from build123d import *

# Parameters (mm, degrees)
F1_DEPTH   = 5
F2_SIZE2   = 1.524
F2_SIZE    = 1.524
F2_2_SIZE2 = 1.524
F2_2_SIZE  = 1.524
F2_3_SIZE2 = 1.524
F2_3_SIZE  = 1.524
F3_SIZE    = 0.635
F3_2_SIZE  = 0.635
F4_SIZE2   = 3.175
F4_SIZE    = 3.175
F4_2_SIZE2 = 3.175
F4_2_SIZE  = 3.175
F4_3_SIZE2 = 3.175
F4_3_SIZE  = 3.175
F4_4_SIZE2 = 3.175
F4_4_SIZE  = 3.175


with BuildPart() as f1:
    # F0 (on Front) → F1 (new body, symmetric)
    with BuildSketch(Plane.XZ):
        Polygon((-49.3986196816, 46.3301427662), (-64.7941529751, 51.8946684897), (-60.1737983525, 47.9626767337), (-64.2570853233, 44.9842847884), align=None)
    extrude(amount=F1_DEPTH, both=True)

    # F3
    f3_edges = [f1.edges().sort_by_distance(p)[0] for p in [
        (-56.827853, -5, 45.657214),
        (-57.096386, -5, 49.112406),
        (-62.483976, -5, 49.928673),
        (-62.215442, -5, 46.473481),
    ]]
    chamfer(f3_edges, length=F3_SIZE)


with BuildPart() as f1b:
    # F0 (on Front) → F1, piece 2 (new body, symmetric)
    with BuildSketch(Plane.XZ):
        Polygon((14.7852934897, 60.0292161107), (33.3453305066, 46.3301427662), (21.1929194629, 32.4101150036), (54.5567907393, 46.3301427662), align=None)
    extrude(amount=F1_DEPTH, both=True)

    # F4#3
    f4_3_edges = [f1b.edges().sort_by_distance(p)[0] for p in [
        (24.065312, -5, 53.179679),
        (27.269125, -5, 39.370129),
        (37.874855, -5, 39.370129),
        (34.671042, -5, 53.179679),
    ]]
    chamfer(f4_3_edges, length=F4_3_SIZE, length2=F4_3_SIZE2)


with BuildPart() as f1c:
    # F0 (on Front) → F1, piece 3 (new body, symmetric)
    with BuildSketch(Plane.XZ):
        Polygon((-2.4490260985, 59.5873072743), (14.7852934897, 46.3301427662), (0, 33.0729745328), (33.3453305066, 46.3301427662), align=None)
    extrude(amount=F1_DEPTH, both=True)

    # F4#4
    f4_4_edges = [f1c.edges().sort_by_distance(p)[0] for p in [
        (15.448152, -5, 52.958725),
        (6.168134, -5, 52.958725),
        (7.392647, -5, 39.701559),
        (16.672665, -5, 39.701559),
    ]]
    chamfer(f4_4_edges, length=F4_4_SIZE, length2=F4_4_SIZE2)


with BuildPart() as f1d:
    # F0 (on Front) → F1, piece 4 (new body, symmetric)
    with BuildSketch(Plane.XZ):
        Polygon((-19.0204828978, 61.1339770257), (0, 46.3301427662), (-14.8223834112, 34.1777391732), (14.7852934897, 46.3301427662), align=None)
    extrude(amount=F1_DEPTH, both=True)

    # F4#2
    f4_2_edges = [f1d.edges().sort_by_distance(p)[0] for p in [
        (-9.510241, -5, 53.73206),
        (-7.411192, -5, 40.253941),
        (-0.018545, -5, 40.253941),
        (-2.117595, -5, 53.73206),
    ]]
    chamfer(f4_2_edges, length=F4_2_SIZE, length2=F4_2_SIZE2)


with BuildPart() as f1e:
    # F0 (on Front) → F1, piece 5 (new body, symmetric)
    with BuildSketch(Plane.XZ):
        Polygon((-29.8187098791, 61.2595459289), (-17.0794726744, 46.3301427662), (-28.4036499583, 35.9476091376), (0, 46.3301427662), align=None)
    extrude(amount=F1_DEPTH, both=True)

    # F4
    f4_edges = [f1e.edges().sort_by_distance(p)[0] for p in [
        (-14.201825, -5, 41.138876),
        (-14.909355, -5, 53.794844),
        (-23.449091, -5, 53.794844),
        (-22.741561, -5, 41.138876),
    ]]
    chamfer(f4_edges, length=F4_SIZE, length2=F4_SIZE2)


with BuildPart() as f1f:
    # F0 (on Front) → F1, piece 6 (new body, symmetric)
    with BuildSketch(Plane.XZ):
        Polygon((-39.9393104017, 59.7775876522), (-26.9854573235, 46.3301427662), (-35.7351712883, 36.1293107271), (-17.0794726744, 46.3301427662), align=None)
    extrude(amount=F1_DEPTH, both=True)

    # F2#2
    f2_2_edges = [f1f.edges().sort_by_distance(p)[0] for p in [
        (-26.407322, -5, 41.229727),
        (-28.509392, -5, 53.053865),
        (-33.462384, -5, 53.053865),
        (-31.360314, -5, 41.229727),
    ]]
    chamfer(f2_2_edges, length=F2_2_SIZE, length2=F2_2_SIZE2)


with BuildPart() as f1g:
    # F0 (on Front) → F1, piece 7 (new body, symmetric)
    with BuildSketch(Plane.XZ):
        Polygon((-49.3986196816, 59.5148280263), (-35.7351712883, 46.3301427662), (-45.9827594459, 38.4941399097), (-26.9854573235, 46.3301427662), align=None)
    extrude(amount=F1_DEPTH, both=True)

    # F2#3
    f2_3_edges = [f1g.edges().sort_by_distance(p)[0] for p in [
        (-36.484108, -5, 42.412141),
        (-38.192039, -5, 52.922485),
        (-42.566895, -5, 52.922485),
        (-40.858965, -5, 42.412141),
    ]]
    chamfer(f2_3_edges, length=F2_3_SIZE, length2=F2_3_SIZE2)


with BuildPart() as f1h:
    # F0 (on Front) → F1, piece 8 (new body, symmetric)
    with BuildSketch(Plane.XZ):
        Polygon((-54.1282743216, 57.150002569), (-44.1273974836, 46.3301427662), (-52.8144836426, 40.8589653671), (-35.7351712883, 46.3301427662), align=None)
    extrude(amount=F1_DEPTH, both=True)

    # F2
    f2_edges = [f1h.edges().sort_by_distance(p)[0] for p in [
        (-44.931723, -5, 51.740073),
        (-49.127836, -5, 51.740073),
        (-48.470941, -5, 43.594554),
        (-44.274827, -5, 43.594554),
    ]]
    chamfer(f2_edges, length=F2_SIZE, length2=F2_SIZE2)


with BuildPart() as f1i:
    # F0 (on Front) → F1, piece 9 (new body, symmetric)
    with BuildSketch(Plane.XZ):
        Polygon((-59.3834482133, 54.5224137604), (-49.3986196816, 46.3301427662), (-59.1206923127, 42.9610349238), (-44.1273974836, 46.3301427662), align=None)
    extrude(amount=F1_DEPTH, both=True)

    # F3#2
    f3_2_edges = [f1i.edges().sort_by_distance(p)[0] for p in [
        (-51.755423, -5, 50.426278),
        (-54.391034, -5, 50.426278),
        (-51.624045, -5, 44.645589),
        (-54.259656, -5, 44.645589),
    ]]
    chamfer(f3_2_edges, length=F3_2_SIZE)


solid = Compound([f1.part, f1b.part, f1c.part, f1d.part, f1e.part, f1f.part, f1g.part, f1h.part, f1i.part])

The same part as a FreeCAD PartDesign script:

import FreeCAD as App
import Part
import Sketcher
Q = App.Units.Quantity


def edges_at(feature, points):
    """Names of the edges that pass closest to the given points."""
    edges = feature.Shape.Edges
    near = lambda p: min(range(len(edges)), key=lambda i: edges[i].distToShape(Part.Vertex(*p))[0])
    return sorted({f"Edge{near(p) + 1}" for p in points})

doc = App.newDocument("Part")
body = doc.addObject("PartDesign::Body", "Body")

# Sketch on XZ plane
sketch1 = body.newObject("Sketcher::SketchObject", "Sketch")
sketch1.AttachmentSupport = (doc.getObject("XZ_Plane"), [""])
sketch1.MapMode = "FlatFace"
sketch1.addGeometry(Part.LineSegment(App.Vector(-49, 46, 0), App.Vector(-65, 52, 0)), False)
sketch1.addGeometry(Part.LineSegment(App.Vector(-65, 52, 0), App.Vector(-60, 48, 0)), False)
sketch1.addGeometry(Part.LineSegment(App.Vector(-60, 48, 0), App.Vector(-64, 45, 0)), False)
sketch1.addGeometry(Part.LineSegment(App.Vector(-64, 45, 0), App.Vector(-49, 46, 0)), False)
sketch1.addConstraint(Sketcher.Constraint("Coincident", 0, 2, 1, 1))
sketch1.addConstraint(Sketcher.Constraint("Coincident", 1, 2, 2, 1))
sketch1.addConstraint(Sketcher.Constraint("Coincident", 2, 2, 3, 1))
sketch1.addConstraint(Sketcher.Constraint("Coincident", 3, 2, 0, 1))
sketch1.addConstraint(Sketcher.Constraint("DistanceX", 1, 2, -1, 1, 60.173798))
sketch1.addConstraint(Sketcher.Constraint("Distance", 0, 16.37029))
sketch1.addConstraint(Sketcher.Constraint("Distance", 1, 6.066979))
sketch1.addConstraint(Sketcher.Constraint("DistanceY", -1, 1, 0, 2, 51.894668))
sketch1.addConstraint(Sketcher.Constraint("DistanceX", 3, 2, -1, 1, 49.39862))
sketch1.addConstraint(Sketcher.Constraint("DistanceY", 1, 2, 0, 2, 3.931992))
sketch1.addConstraint(Sketcher.Constraint("DistanceY", 2, 2, 1, 2, 2.978392))
sketch1.addConstraint(Sketcher.Constraint("Distance", 2, 5.054112))
pad1 = body.newObject("PartDesign::Pad", "Pad")
pad1.Profile = sketch1
pad1.Length = 10
pad1.Midplane = True
doc.recompute()

chamfer = body.newObject("PartDesign::Chamfer", "Chamfer")
chamfer.Base = (pad1, edges_at(pad1, [
    (-56.828, -5, 45.657),
    (-57.096, -5, 49.112),
    (-62.484, -5, 49.929),
    (-62.215, -5, 46.473),
]))
chamfer.Size = Q("0.025 in")
body2 = doc.addObject("PartDesign::Body", "Body001")

# Sketch on XZ plane
sketch2 = body2.newObject("Sketcher::SketchObject", "Sketch001")
sketch2.AttachmentSupport = (doc.getObject("XZ_Plane001"), [""])
sketch2.MapMode = "FlatFace"
sketch2.addGeometry(Part.LineSegment(App.Vector(15, 60, 0), App.Vector(33, 46, 0)), False)
sketch2.addGeometry(Part.LineSegment(App.Vector(33, 46, 0), App.Vector(21, 32, 0)), False)
sketch2.addGeometry(Part.LineSegment(App.Vector(21, 32, 0), App.Vector(55, 46, 0)), False)
sketch2.addGeometry(Part.LineSegment(App.Vector(55, 46, 0), App.Vector(15, 60, 0)), False)
sketch2.addConstraint(Sketcher.Constraint("Coincident", 0, 2, 1, 1))
sketch2.addConstraint(Sketcher.Constraint("Coincident", 1, 2, 2, 1))
sketch2.addConstraint(Sketcher.Constraint("Coincident", 2, 2, 3, 1))
sketch2.addConstraint(Sketcher.Constraint("Coincident", 3, 2, 0, 1))
sketch2.addConstraint(Sketcher.Constraint("Horizontal", 0, 2, 2, 2))
sketch2.addConstraint(Sketcher.Constraint("DistanceY", 1, 2, 3, 2, 27.619101))
sketch2.addConstraint(Sketcher.Constraint("Distance", 0, 23.068151))
sketch2.addConstraint(Sketcher.Constraint("Distance", 1, 18.478319))
sketch2.addConstraint(Sketcher.Constraint("Distance", 2, 36.15128))
sketch2.addConstraint(Sketcher.Constraint("Distance", 3, 42.064672))
sketch2.addConstraint(Sketcher.Constraint("DistanceX", -1, 1, 0, 2, 33.345331))
sketch2.addConstraint(Sketcher.Constraint("DistanceY", -1, 1, 0, 2, 46.330143))
pad2 = body2.newObject("PartDesign::Pad", "Pad001")
pad2.Profile = sketch2
pad2.Length = 10
pad2.Midplane = True
doc.recompute()

chamfer2 = body2.newObject("PartDesign::Chamfer", "Chamfer001")
chamfer2.Base = (pad2, edges_at(pad2, [
    (24.065, -5, 53.18),
    (27.269, -5, 39.37),
    (37.875, -5, 39.37),
    (34.671, -5, 53.18),
]))
chamfer2.ChamferType = "Two distances"
chamfer2.Size = Q("0.125 in")
chamfer2.Size2 = Q("0.125 in")
body3 = doc.addObject("PartDesign::Body", "Body002")

# Sketch on XZ plane
sketch3 = body3.newObject("Sketcher::SketchObject", "Sketch002")
sketch3.AttachmentSupport = (doc.getObject("XZ_Plane002"), [""])
sketch3.MapMode = "FlatFace"
sketch3.addGeometry(Part.LineSegment(App.Vector(-2, 60, 0), App.Vector(15, 46, 0)), False)
sketch3.addGeometry(Part.LineSegment(App.Vector(15, 46, 0), App.Vector(0, 33, 0)), False)
sketch3.addGeometry(Part.LineSegment(App.Vector(0, 33, 0), App.Vector(33, 46, 0)), False)
sketch3.addGeometry(Part.LineSegment(App.Vector(33, 46, 0), App.Vector(-2, 60, 0)), False)
sketch3.addConstraint(Sketcher.Constraint("Coincident", 0, 2, 1, 1))
sketch3.addConstraint(Sketcher.Constraint("Coincident", 1, 2, 2, 1))
sketch3.addConstraint(Sketcher.Constraint("Coincident", 2, 2, 3, 1))
sketch3.addConstraint(Sketcher.Constraint("Coincident", 3, 2, 0, 1))
sketch3.addConstraint(Sketcher.Constraint("PointOnObject", 1, 2, -2))
sketch3.addConstraint(Sketcher.Constraint("Horizontal", 0, 2, 2, 2))
sketch3.addConstraint(Sketcher.Constraint("Distance", 0, 21.743371))
sketch3.addConstraint(Sketcher.Constraint("Distance", 2, 35.88403))
sketch3.addConstraint(Sketcher.Constraint("DistanceX", -1, 1, 2, 2, 33.345331))
sketch3.addConstraint(Sketcher.Constraint("DistanceX", 3, 2, 0, 2, 17.23432))
sketch3.addConstraint(Sketcher.Constraint("Distance", 1, 19.858434))
sketch3.addConstraint(Sketcher.Constraint("DistanceY", -1, 1, 0, 2, 46.330143))
pad3 = body3.newObject("PartDesign::Pad", "Pad002")
pad3.Profile = sketch3
pad3.Length = 10
pad3.Midplane = True
doc.recompute()

chamfer3 = body3.newObject("PartDesign::Chamfer", "Chamfer002")
chamfer3.Base = (pad3, edges_at(pad3, [
    (15.448, -5, 52.959),
    (6.168, -5, 52.959),
    (7.393, -5, 39.702),
    (16.673, -5, 39.702),
]))
chamfer3.ChamferType = "Two distances"
chamfer3.Size = Q("0.125 in")
chamfer3.Size2 = Q("0.125 in")
body4 = doc.addObject("PartDesign::Body", "Body003")

# Sketch on XZ plane
sketch4 = body4.newObject("Sketcher::SketchObject", "Sketch003")
sketch4.AttachmentSupport = (doc.getObject("XZ_Plane003"), [""])
sketch4.MapMode = "FlatFace"
sketch4.addGeometry(Part.LineSegment(App.Vector(-19.020483, 61.133977, 0), App.Vector(0, 46.330143, 0)), False)
sketch4.addGeometry(Part.LineSegment(App.Vector(0, 46.330143, 0), App.Vector(-14.822383, 34.177739, 0)), False)
sketch4.addGeometry(Part.LineSegment(App.Vector(-14.822383, 34.177739, 0), App.Vector(14.785293, 46.330143, 0)), False)
sketch4.addGeometry(Part.LineSegment(App.Vector(14.785293, 46.330143, 0), App.Vector(-19.020483, 61.133977, 0)), False)
sketch4.addConstraint(Sketcher.Constraint("Coincident", 0, 2, 1, 1))
sketch4.addConstraint(Sketcher.Constraint("Coincident", 1, 2, 2, 1))
sketch4.addConstraint(Sketcher.Constraint("Coincident", 2, 2, 3, 1))
sketch4.addConstraint(Sketcher.Constraint("Coincident", 3, 2, 0, 1))
sketch4.addConstraint(Sketcher.Constraint("PointOnObject", 0, 2, -2))
sketch4.addConstraint(Sketcher.Constraint("DistanceX", 3, 2, 1, 2, 4.198099))
sketch4.addConstraint(Sketcher.Constraint("DistanceY", -1, 1, 1, 2, 34.177739))
sketch4.addConstraint(Sketcher.Constraint("Distance", 0, 24.102537))
sketch4.addConstraint(Sketcher.Constraint("Distance", 1, 19.167263))
sketch4.addConstraint(Sketcher.Constraint("Distance", 2, 32.004616))
sketch4.addConstraint(Sketcher.Constraint("Distance", 3, 36.905068))
sketch4.addConstraint(Sketcher.Constraint("DistanceY", -1, 1, 0, 2, 46.330143))
pad4 = body4.newObject("PartDesign::Pad", "Pad003")
pad4.Profile = sketch4
pad4.Length = 10
pad4.Midplane = True
doc.recompute()

chamfer4 = body4.newObject("PartDesign::Chamfer", "Chamfer003")
chamfer4.Base = (pad4, edges_at(pad4, [
    (-9.51, -5, 53.732),
    (-7.411, -5, 40.254),
    (-0.019, -5, 40.254),
    (-2.118, -5, 53.732),
]))
chamfer4.ChamferType = "Two distances"
chamfer4.Size = Q("0.125 in")
chamfer4.Size2 = Q("0.125 in")
body5 = doc.addObject("PartDesign::Body", "Body004")

# Sketch on XZ plane
sketch5 = body5.newObject("Sketcher::SketchObject", "Sketch004")
sketch5.AttachmentSupport = (doc.getObject("XZ_Plane004"), [""])
sketch5.MapMode = "FlatFace"
sketch5.addGeometry(Part.LineSegment(App.Vector(-30, 61, 0), App.Vector(-17, 46, 0)), False)
sketch5.addGeometry(Part.LineSegment(App.Vector(-17, 46, 0), App.Vector(-28, 36, 0)), False)
sketch5.addGeometry(Part.LineSegment(App.Vector(-28, 36, 0), App.Vector(0, 46, 0)), False)
sketch5.addGeometry(Part.LineSegment(App.Vector(0, 46, 0), App.Vector(-30, 61, 0)), False)
sketch5.addConstraint(Sketcher.Constraint("Coincident", 0, 2, 1, 1))
sketch5.addConstraint(Sketcher.Constraint("Coincident", 1, 2, 2, 1))
sketch5.addConstraint(Sketcher.Constraint("Coincident", 2, 2, 3, 1))
sketch5.addConstraint(Sketcher.Constraint("Coincident", 3, 2, 0, 1))
sketch5.addConstraint(Sketcher.Constraint("PointOnObject", 2, 2, -2))
sketch5.addConstraint(Sketcher.Constraint("Horizontal", 0, 2, 2, 2))
sketch5.addConstraint(Sketcher.Constraint("Distance", 3, 33.347302))
sketch5.addConstraint(Sketcher.Constraint("Distance", 0, 19.625882))
sketch5.addConstraint(Sketcher.Constraint("DistanceX", 1, 2, -1, 1, 28.40365))
sketch5.addConstraint(Sketcher.Constraint("DistanceY", -1, 1, 1, 2, 35.947609))
sketch5.addConstraint(Sketcher.Constraint("DistanceX", 3, 2, -1, 1, 29.81871))
sketch5.addConstraint(Sketcher.Constraint("Distance", 1, 15.363398))
pad5 = body5.newObject("PartDesign::Pad", "Pad004")
pad5.Profile = sketch5
pad5.Length = 10
pad5.Midplane = True
doc.recompute()

chamfer5 = body5.newObject("PartDesign::Chamfer", "Chamfer004")
chamfer5.Base = (pad5, edges_at(pad5, [
    (-14.202, -5, 41.139),
    (-14.909, -5, 53.795),
    (-23.449, -5, 53.795),
    (-22.742, -5, 41.139),
]))
chamfer5.ChamferType = "Two distances"
chamfer5.Size = Q("0.125 in")
chamfer5.Size2 = Q("0.125 in")
body6 = doc.addObject("PartDesign::Body", "Body005")

# Sketch on XZ plane
sketch6 = body6.newObject("Sketcher::SketchObject", "Sketch005")
sketch6.AttachmentSupport = (doc.getObject("XZ_Plane005"), [""])
sketch6.MapMode = "FlatFace"
sketch6.addGeometry(Part.LineSegment(App.Vector(-40, 60, 0), App.Vector(-27, 46, 0)), False)
sketch6.addGeometry(Part.LineSegment(App.Vector(-27, 46, 0), App.Vector(-36, 36, 0)), False)
sketch6.addGeometry(Part.LineSegment(App.Vector(-36, 36, 0), App.Vector(-17, 46, 0)), False)
sketch6.addGeometry(Part.LineSegment(App.Vector(-17, 46, 0), App.Vector(-40, 60, 0)), False)
sketch6.addConstraint(Sketcher.Constraint("Coincident", 0, 2, 1, 1))
sketch6.addConstraint(Sketcher.Constraint("Coincident", 1, 2, 2, 1))
sketch6.addConstraint(Sketcher.Constraint("Coincident", 2, 2, 3, 1))
sketch6.addConstraint(Sketcher.Constraint("Coincident", 3, 2, 0, 1))
sketch6.addConstraint(Sketcher.Constraint("Horizontal", 0, 2, 2, 2))
sketch6.addConstraint(Sketcher.Constraint("Distance", 0, 18.671799))
sketch6.addConstraint(Sketcher.Constraint("Distance", 3, 26.521802))
sketch6.addConstraint(Sketcher.Constraint("DistanceX", 1, 2, 2, 2, 18.655699))
sketch6.addConstraint(Sketcher.Constraint("Distance", 1, 13.439288))
sketch6.addConstraint(Sketcher.Constraint("DistanceX", 1, 2, -1, 1, 35.735171))
sketch6.addConstraint(Sketcher.Constraint("DistanceY", -1, 1, 1, 2, 36.129311))
sketch6.addConstraint(Sketcher.Constraint("DistanceX", 3, 2, -1, 1, 39.93931))
pad6 = body6.newObject("PartDesign::Pad", "Pad005")
pad6.Profile = sketch6
pad6.Length = 10
pad6.Midplane = True
doc.recompute()

chamfer6 = body6.newObject("PartDesign::Chamfer", "Chamfer005")
chamfer6.Base = (pad6, edges_at(pad6, [
    (-26.407, -5, 41.23),
    (-28.509, -5, 53.054),
    (-33.462, -5, 53.054),
    (-31.36, -5, 41.23),
]))
chamfer6.ChamferType = "Two distances"
chamfer6.Size = Q("0.06 in")
chamfer6.Size2 = Q("0.06 in")
body7 = doc.addObject("PartDesign::Body", "Body006")

# Sketch on XZ plane
sketch7 = body7.newObject("Sketcher::SketchObject", "Sketch006")
sketch7.AttachmentSupport = (doc.getObject("XZ_Plane006"), [""])
sketch7.MapMode = "FlatFace"
sketch7.addGeometry(Part.LineSegment(App.Vector(-49, 60, 0), App.Vector(-36, 46, 0)), False)
sketch7.addGeometry(Part.LineSegment(App.Vector(-36, 46, 0), App.Vector(-46, 38, 0)), False)
sketch7.addGeometry(Part.LineSegment(App.Vector(-46, 38, 0), App.Vector(-27, 46, 0)), False)
sketch7.addGeometry(Part.LineSegment(App.Vector(-27, 46, 0), App.Vector(-49, 60, 0)), False)
sketch7.addConstraint(Sketcher.Constraint("Coincident", 0, 2, 1, 1))
sketch7.addConstraint(Sketcher.Constraint("Coincident", 1, 2, 2, 1))
sketch7.addConstraint(Sketcher.Constraint("Coincident", 2, 2, 3, 1))
sketch7.addConstraint(Sketcher.Constraint("Coincident", 3, 2, 0, 1))
sketch7.addConstraint(Sketcher.Constraint("Horizontal", 0, 2, 2, 2))
sketch7.addConstraint(Sketcher.Constraint("Distance", 2, 20.54995))
sketch7.addConstraint(Sketcher.Constraint("DistanceX", 0, 2, -1, 1, 35.735171))
sketch7.addConstraint(Sketcher.Constraint("DistanceX", 1, 2, -1, 1, 45.982759))
sketch7.addConstraint(Sketcher.Constraint("DistanceY", -1, 1, 1, 2, 38.49414))
sketch7.addConstraint(Sketcher.Constraint("DistanceX", 3, 2, -1, 1, 49.39862))
sketch7.addConstraint(Sketcher.Constraint("DistanceY", -1, 1, 3, 2, 59.514828))
sketch7.addConstraint(Sketcher.Constraint("Distance", 0, 18.987516))
pad7 = body7.newObject("PartDesign::Pad", "Pad006")
pad7.Profile = sketch7
pad7.Length = 10
pad7.Midplane = True
doc.recompute()

chamfer7 = body7.newObject("PartDesign::Chamfer", "Chamfer006")
chamfer7.Base = (pad7, edges_at(pad7, [
    (-36.484, -5, 42.412),
    (-38.192, -5, 52.922),
    (-42.567, -5, 52.922),
    (-40.859, -5, 42.412),
]))
chamfer7.ChamferType = "Two distances"
chamfer7.Size = Q("0.06 in")
chamfer7.Size2 = Q("0.06 in")
body8 = doc.addObject("PartDesign::Body", "Body007")

# Sketch on XZ plane
sketch8 = body8.newObject("Sketcher::SketchObject", "Sketch007")
sketch8.AttachmentSupport = (doc.getObject("XZ_Plane007"), [""])
sketch8.MapMode = "FlatFace"
sketch8.addGeometry(Part.LineSegment(App.Vector(-54, 57, 0), App.Vector(-44, 46, 0)), False)
sketch8.addGeometry(Part.LineSegment(App.Vector(-44, 46, 0), App.Vector(-53, 41, 0)), False)
sketch8.addGeometry(Part.LineSegment(App.Vector(-53, 41, 0), App.Vector(-36, 46, 0)), False)
sketch8.addGeometry(Part.LineSegment(App.Vector(-36, 46, 0), App.Vector(-54, 57, 0)), False)
sketch8.addConstraint(Sketcher.Constraint("Coincident", 0, 2, 1, 1))
sketch8.addConstraint(Sketcher.Constraint("Coincident", 1, 2, 2, 1))
sketch8.addConstraint(Sketcher.Constraint("Coincident", 2, 2, 3, 1))
sketch8.addConstraint(Sketcher.Constraint("Coincident", 3, 2, 0, 1))
sketch8.addConstraint(Sketcher.Constraint("Horizontal", 0, 2, 2, 2))
sketch8.addConstraint(Sketcher.Constraint("DistanceY", -1, 1, 3, 2, Q("2.2500001 in")))
sketch8.addConstraint(Sketcher.Constraint("Distance", 0, 14.733869))
sketch8.addConstraint(Sketcher.Constraint("Distance", 3, 21.339532))
sketch8.addConstraint(Sketcher.Constraint("DistanceX", 2, 2, -1, 1, 35.735171))
sketch8.addConstraint(Sketcher.Constraint("DistanceY", 0, 2, 3, 2, 10.81986))
sketch8.addConstraint(Sketcher.Constraint("DistanceX", 3, 2, 1, 2, 1.313791))
sketch8.addConstraint(Sketcher.Constraint("Distance", 1, 10.266414))
pad8 = body8.newObject("PartDesign::Pad", "Pad007")
pad8.Profile = sketch8
pad8.Length = 10
pad8.Midplane = True
doc.recompute()

chamfer8 = body8.newObject("PartDesign::Chamfer", "Chamfer007")
chamfer8.Base = (pad8, edges_at(pad8, [
    (-44.932, -5, 51.74),
    (-49.128, -5, 51.74),
    (-48.471, -5, 43.595),
    (-44.275, -5, 43.595),
]))
chamfer8.ChamferType = "Two distances"
chamfer8.Size = Q("0.06 in")
chamfer8.Size2 = Q("0.06 in")
body9 = doc.addObject("PartDesign::Body", "Body008")

# Sketch on XZ plane
sketch9 = body9.newObject("Sketcher::SketchObject", "Sketch008")
sketch9.AttachmentSupport = (doc.getObject("XZ_Plane008"), [""])
sketch9.MapMode = "FlatFace"
sketch9.addGeometry(Part.LineSegment(App.Vector(-59, 55, 0), App.Vector(-49, 46, 0)), False)
sketch9.addGeometry(Part.LineSegment(App.Vector(-49, 46, 0), App.Vector(-59, 43, 0)), False)
sketch9.addGeometry(Part.LineSegment(App.Vector(-59, 43, 0), App.Vector(-44, 46, 0)), False)
sketch9.addGeometry(Part.LineSegment(App.Vector(-44, 46, 0), App.Vector(-59, 55, 0)), False)
sketch9.addConstraint(Sketcher.Constraint("Coincident", 0, 2, 1, 1))
sketch9.addConstraint(Sketcher.Constraint("Coincident", 1, 2, 2, 1))
sketch9.addConstraint(Sketcher.Constraint("Coincident", 2, 2, 3, 1))
sketch9.addConstraint(Sketcher.Constraint("Coincident", 3, 2, 0, 1))
sketch9.addConstraint(Sketcher.Constraint("Horizontal", 0, 2, 2, 2))
sketch9.addConstraint(Sketcher.Constraint("Distance", 0, 12.915499))
sketch9.addConstraint(Sketcher.Constraint("DistanceX", 0, 2, -1, 1, 49.39862))
sketch9.addConstraint(Sketcher.Constraint("DistanceX", 3, 2, -1, 1, 59.383448))
sketch9.addConstraint(Sketcher.Constraint("DistanceY", 1, 2, 3, 2, 11.561379))
sketch9.addConstraint(Sketcher.Constraint("DistanceX", 3, 2, 2, 2, 15.256051))
sketch9.addConstraint(Sketcher.Constraint("Distance", 1, 10.289295))
sketch9.addConstraint(Sketcher.Constraint("DistanceY", -1, 1, 0, 2, 46.330143))
pad9 = body9.newObject("PartDesign::Pad", "Pad008")
pad9.Profile = sketch9
pad9.Length = 10
pad9.Midplane = True
doc.recompute()

chamfer9 = body9.newObject("PartDesign::Chamfer", "Chamfer008")
chamfer9.Base = (pad9, edges_at(pad9, [
    (-51.755, -5, 50.426),
    (-54.391, -5, 50.426),
    (-51.624, -5, 44.646),
    (-54.26, -5, 44.646),
]))
chamfer9.Size = Q("0.025 in")

doc.recompute()
